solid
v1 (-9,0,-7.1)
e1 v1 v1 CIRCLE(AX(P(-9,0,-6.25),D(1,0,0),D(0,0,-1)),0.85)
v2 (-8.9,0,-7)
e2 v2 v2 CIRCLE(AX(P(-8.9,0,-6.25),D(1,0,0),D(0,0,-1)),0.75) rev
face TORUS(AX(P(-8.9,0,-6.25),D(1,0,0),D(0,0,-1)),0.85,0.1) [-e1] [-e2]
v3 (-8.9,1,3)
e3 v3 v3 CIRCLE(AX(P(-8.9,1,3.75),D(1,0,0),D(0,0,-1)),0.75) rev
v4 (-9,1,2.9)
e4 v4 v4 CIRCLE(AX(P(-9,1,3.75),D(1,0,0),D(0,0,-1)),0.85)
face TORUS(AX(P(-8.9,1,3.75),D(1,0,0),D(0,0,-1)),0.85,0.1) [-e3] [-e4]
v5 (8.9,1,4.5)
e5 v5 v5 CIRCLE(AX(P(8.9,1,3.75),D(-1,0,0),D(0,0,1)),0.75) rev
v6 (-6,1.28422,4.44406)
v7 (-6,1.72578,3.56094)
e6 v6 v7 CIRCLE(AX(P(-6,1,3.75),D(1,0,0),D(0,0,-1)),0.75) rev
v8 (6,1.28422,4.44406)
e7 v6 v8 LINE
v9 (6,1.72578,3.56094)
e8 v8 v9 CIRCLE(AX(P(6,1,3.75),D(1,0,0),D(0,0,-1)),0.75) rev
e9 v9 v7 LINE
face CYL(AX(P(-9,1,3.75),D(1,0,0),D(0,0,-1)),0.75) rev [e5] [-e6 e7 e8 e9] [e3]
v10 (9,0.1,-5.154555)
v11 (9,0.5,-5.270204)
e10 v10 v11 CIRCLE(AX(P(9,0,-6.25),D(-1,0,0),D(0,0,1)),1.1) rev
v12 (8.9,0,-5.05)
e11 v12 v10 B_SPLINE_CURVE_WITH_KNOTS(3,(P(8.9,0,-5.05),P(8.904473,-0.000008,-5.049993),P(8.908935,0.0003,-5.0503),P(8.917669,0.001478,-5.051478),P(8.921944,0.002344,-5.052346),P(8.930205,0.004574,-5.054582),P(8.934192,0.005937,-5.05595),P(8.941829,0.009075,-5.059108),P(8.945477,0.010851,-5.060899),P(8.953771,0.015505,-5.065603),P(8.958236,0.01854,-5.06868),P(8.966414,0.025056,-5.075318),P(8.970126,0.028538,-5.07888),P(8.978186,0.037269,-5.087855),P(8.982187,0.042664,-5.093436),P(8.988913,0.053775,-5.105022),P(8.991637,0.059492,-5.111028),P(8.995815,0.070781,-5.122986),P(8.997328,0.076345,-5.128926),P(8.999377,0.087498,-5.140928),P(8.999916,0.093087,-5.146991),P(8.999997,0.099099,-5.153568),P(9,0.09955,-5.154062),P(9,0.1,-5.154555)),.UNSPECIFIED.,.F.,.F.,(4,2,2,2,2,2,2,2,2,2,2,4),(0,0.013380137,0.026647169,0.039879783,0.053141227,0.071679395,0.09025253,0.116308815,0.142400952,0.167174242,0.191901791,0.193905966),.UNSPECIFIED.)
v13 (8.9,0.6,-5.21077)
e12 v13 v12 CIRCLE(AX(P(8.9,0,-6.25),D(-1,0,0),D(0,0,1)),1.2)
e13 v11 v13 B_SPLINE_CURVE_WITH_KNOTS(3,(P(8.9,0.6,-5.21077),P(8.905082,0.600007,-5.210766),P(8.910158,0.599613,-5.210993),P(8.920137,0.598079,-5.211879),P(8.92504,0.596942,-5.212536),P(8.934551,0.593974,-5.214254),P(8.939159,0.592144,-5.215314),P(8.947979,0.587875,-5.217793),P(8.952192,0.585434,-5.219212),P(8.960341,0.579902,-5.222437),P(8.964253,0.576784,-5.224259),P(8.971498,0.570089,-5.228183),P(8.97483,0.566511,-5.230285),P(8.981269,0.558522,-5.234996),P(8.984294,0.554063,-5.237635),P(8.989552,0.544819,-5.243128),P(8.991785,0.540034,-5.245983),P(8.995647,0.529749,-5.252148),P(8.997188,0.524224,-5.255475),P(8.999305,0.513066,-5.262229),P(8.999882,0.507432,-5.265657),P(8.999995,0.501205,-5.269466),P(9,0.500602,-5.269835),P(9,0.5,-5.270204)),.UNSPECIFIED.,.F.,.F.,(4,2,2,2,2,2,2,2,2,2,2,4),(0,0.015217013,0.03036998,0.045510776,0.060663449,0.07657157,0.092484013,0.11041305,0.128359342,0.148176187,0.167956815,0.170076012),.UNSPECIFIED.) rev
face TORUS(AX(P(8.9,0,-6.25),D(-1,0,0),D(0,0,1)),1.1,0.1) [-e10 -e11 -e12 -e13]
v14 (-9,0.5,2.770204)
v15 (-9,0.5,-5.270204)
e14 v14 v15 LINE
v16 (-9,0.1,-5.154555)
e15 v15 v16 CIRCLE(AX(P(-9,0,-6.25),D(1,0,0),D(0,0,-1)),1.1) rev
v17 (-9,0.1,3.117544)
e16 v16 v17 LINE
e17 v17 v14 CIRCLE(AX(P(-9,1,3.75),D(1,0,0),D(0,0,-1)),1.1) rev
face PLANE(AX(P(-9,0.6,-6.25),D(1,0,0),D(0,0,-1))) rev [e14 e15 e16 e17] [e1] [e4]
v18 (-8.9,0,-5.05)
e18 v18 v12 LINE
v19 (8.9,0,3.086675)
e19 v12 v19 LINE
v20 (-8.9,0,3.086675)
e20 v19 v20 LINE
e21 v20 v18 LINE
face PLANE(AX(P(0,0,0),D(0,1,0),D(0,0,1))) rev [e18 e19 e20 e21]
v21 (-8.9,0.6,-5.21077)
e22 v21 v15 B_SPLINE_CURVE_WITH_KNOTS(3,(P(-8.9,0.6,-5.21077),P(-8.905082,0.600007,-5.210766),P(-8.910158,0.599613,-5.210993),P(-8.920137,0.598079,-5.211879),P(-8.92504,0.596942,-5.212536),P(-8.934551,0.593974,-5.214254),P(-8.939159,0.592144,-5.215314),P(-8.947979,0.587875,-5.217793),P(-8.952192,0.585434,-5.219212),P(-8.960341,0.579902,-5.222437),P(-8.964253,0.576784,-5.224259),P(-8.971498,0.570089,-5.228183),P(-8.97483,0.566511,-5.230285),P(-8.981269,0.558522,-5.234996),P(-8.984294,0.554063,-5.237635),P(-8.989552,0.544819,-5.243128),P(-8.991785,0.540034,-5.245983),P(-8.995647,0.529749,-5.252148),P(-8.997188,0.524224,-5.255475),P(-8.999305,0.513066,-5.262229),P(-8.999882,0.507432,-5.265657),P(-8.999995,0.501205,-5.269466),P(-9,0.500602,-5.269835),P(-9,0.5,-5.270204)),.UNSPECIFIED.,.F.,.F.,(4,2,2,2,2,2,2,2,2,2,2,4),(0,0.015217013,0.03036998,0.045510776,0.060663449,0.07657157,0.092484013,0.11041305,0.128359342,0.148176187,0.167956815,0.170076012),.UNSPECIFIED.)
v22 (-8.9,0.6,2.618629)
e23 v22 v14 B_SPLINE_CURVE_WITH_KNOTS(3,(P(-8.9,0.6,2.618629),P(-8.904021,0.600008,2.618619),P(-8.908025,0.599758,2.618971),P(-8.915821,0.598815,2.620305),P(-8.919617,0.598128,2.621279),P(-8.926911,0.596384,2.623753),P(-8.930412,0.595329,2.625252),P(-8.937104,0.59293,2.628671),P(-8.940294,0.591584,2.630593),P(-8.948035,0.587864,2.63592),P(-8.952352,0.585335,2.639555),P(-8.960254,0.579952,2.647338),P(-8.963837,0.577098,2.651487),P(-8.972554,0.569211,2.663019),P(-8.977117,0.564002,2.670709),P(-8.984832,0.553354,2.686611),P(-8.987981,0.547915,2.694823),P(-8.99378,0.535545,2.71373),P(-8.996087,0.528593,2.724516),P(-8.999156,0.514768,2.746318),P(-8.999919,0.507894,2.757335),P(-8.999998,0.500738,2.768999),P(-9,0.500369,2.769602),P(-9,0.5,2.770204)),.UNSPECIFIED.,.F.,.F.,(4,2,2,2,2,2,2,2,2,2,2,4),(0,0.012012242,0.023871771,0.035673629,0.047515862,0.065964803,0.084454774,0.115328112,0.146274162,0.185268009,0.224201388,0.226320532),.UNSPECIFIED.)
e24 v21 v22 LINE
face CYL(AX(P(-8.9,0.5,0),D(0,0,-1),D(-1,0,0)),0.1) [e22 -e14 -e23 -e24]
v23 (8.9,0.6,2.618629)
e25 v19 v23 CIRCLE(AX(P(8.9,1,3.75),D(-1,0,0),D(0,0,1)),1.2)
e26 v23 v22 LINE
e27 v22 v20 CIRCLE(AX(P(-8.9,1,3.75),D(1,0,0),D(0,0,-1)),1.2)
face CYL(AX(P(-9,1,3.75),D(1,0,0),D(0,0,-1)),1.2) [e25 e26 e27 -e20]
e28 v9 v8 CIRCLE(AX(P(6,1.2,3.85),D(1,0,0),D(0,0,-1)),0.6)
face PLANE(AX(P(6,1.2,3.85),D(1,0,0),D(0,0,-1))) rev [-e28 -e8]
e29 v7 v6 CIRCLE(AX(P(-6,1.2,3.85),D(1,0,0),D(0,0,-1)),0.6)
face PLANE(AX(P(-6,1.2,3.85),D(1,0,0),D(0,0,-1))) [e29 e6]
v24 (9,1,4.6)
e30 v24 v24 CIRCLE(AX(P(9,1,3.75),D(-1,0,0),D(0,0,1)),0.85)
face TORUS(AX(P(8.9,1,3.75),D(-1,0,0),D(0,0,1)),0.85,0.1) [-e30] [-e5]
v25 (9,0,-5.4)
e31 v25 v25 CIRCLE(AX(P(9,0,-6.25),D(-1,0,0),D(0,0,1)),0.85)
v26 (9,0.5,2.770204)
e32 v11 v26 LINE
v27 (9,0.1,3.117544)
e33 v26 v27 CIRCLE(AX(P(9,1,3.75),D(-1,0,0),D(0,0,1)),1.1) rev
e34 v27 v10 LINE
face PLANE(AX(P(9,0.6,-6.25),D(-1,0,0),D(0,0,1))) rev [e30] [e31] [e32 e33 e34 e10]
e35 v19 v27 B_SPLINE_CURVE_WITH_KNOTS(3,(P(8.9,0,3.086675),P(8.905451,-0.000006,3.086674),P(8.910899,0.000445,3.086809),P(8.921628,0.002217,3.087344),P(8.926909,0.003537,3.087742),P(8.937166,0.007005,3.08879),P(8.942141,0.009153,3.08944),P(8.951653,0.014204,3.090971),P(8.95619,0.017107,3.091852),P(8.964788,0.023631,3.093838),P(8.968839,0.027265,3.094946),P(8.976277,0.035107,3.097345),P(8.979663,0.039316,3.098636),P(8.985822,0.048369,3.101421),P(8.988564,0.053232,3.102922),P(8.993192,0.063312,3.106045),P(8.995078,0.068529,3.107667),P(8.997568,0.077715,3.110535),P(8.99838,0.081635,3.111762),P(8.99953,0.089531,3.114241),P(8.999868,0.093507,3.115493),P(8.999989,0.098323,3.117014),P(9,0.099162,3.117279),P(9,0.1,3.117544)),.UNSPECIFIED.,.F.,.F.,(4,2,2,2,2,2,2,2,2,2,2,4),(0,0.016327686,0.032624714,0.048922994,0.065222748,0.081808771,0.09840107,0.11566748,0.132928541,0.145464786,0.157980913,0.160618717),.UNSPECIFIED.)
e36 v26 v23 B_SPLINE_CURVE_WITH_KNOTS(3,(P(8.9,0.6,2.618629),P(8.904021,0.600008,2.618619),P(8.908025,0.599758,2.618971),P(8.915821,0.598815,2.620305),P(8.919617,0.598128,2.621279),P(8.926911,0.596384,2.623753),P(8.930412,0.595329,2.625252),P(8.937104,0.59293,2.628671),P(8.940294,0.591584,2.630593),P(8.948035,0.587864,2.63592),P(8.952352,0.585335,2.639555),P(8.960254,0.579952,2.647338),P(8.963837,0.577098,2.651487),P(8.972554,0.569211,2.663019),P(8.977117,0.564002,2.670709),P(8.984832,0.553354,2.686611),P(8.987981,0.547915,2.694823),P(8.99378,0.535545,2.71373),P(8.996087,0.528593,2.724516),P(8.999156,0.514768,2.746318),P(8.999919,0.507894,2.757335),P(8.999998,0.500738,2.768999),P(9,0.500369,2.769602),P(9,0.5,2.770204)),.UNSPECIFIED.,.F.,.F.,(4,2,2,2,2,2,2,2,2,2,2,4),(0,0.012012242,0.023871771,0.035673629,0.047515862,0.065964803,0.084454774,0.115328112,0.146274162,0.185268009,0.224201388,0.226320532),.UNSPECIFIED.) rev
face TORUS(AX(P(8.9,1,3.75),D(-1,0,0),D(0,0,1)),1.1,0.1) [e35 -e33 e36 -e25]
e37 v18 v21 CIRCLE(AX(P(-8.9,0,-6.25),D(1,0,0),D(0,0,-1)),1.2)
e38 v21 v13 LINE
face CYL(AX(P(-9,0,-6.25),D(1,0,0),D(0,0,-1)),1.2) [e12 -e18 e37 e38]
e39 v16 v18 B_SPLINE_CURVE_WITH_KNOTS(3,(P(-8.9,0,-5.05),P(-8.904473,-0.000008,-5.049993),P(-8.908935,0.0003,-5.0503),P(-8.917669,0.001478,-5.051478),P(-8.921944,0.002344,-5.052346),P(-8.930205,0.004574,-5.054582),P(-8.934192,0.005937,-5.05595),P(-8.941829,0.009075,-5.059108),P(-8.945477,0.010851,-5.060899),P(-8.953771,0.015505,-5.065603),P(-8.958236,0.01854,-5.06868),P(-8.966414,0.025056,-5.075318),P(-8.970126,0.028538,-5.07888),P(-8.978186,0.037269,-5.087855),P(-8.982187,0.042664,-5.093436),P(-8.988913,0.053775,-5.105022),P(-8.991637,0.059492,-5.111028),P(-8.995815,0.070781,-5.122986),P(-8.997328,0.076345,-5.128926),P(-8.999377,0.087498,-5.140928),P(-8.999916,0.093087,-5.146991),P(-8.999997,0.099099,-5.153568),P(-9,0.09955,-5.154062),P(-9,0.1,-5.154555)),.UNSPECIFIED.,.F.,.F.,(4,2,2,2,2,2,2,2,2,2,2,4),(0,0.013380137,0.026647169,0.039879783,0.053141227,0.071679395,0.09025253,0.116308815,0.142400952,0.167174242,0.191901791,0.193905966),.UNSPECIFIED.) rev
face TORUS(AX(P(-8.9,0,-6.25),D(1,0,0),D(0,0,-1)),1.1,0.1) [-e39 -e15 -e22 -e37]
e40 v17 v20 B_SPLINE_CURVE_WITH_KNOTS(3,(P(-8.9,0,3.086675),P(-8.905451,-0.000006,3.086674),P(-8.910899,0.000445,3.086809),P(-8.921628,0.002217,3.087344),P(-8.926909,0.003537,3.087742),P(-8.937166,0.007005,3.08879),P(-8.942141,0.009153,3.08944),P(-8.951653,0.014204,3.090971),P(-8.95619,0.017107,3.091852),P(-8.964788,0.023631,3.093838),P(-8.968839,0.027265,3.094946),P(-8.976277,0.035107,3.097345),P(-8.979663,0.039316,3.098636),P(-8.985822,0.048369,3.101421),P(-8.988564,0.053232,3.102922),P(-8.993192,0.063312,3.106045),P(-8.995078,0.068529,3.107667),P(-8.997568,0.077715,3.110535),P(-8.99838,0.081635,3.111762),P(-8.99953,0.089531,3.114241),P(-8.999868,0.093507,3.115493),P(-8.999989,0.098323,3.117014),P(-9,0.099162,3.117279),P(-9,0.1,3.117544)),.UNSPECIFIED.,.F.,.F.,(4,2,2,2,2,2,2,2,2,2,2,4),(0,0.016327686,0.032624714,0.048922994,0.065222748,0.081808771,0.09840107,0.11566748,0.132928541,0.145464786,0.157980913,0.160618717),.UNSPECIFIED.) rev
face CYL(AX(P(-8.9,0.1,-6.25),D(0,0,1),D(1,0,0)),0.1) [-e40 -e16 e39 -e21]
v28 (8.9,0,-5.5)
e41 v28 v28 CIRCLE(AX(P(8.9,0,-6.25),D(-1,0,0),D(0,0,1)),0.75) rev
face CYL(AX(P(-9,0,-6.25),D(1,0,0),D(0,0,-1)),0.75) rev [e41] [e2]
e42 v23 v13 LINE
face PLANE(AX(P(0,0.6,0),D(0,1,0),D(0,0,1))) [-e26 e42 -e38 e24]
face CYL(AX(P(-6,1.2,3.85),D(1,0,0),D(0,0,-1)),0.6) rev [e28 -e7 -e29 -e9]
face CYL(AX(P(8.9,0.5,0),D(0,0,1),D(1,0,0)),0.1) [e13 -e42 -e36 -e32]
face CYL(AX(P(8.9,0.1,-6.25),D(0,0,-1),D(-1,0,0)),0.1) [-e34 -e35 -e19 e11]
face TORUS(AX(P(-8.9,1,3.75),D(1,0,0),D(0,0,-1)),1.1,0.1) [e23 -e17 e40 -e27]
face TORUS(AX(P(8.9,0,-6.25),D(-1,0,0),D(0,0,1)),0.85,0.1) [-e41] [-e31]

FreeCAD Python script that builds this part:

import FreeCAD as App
import Part
import Sketcher
from FreeCAD import Vector
Q = App.Units.Quantity


def edges_at(feature, points):
    """Names of the edges that pass closest to the given points."""
    edges = feature.Shape.Edges
    near = lambda p: min(range(len(edges)), key=lambda i: edges[i].distToShape(Part.Vertex(*p))[0])
    return sorted({f"Edge{near(p) + 1}" for p in points})

doc = App.newDocument("Part")
body = doc.addObject("PartDesign::Body", "Body")

# Sketch on XZ plane
sketch1 = body.newObject("Sketcher::SketchObject", "Sketch")
sketch1.AttachmentSupport = (doc.getObject("XZ_Plane"), [""])
sketch1.MapMode = "FlatFace"
sketch1.addGeometry(Part.LineSegment(Vector(-9, -6.25, 0), Vector(-9, 3.75, 0)), False)
sketch1.addGeometry(Part.LineSegment(Vector(-9, 3.75, 0), Vector(9, 3.75, 0)), False)
sketch1.addGeometry(Part.LineSegment(Vector(9, 3.75, 0), Vector(9, -6.25, 0)), False)
sketch1.addGeometry(Part.LineSegment(Vector(9, -6.25, 0), Vector(-9, -6.25, 0)), False)
sketch1.addConstraint(Sketcher.Constraint("Coincident", 0, 2, 1, 1))
sketch1.addConstraint(Sketcher.Constraint("Coincident", 1, 2, 2, 1))
sketch1.addConstraint(Sketcher.Constraint("Coincident", 2, 2, 3, 1))
sketch1.addConstraint(Sketcher.Constraint("Coincident", 3, 2, 0, 1))
sketch1.addConstraint(Sketcher.Constraint("Vertical", 0))
sketch1.addConstraint(Sketcher.Constraint("Horizontal", 1))
sketch1.addConstraint(Sketcher.Constraint("Vertical", 2))
sketch1.addConstraint(Sketcher.Constraint("Horizontal", 3))
sketch1.addConstraint(Sketcher.Constraint("DistanceX", 1, 1, 1, 2, Q("18 mm")))
sketch1.addConstraint(Sketcher.Constraint("DistanceY", 0, 1, 0, 2, Q("10 mm")))
sketch1.addConstraint(Sketcher.Constraint("DistanceX", 0, 2, -1, 1, Q("9 mm")))
sketch1.addConstraint(Sketcher.Constraint("DistanceY", -1, 1, 0, 2, Q("3.75 mm")))
pad1 = body.newObject("PartDesign::Pad", "Pad")
pad1.Profile = sketch1
pad1.Length = 0.6
pad1.Reversed = True

# Sketch on YZ plane
sketch2 = body.newObject("Sketcher::SketchObject", "Sketch001")
sketch2.AttachmentSupport = (doc.getObject("YZ_Plane"), [""])
sketch2.MapMode = "FlatFace"
sketch2.AttachmentOffset = App.Placement(Vector(0, 0, 9), App.Rotation())
sketch2.addGeometry(Part.Circle(Vector(1, 3.75, 0), Vector(0, 0, 1), 1.2), False)
sketch2.addGeometry(Part.Circle(Vector(0, -6.25, 0), Vector(0, 0, 1), 1.2), False)
sketch2.addConstraint(Sketcher.Constraint("Equal", 0, 1))
sketch2.addConstraint(Sketcher.Constraint("PointOnObject", 1, 3, -2))
sketch2.addConstraint(Sketcher.Constraint("Diameter", 0, Q("2.4 mm")))
sketch2.addConstraint(Sketcher.Constraint("DistanceX", -1, 1, 0, 3, Q("1 mm")))
sketch2.addConstraint(Sketcher.Constraint("DistanceY", 1, 3, 0, 3, Q("10 mm")))
sketch2.addConstraint(Sketcher.Constraint("DistanceY", -1, 1, 0, 3, Q("3.75 mm")))
pad2 = body.newObject("PartDesign::Pad", "Pad001")
pad2.Profile = sketch2
pad2.Length = 18
pad2.Reversed = True

# Sketch on YZ plane
sketch3 = body.newObject("Sketcher::SketchObject", "Sketch002")
sketch3.AttachmentSupport = (doc.getObject("YZ_Plane"), [""])
sketch3.MapMode = "FlatFace"
sketch3.AttachmentOffset = App.Placement(Vector(0, 0, 9), App.Rotation())
sketch3.addGeometry(Part.Circle(Vector(1, 3.75, 0), Vector(0, 0, 1), 0.75), False)
sketch3.addGeometry(Part.Circle(Vector(0, -6.25, 0), Vector(0, 0, 1), 0.75), False)
sketch3.addConstraint(Sketcher.Constraint("Equal", 0, 1))
sketch3.addConstraint(Sketcher.Constraint("PointOnObject", 1, 3, -2))
sketch3.addConstraint(Sketcher.Constraint("Diameter", 0, Q("1.5 mm")))
sketch3.addConstraint(Sketcher.Constraint("DistanceX", -1, 1, 0, 3, Q("1 mm")))
sketch3.addConstraint(Sketcher.Constraint("DistanceY", 1, 3, 0, 3, Q("10 mm")))
sketch3.addConstraint(Sketcher.Constraint("DistanceY", -1, 1, 0, 3, Q("3.75 mm")))
pocket1 = body.newObject("PartDesign::Pocket", "Pocket")
pocket1.Profile = sketch3
pocket1.Length = 18

# Sketch on YZ plane
sketch4 = body.newObject("Sketcher::SketchObject", "Sketch003")
sketch4.AttachmentSupport = (doc.getObject("YZ_Plane"), [""])
sketch4.MapMode = "FlatFace"
sketch4.addGeometry(Part.Circle(Vector(1.2, 3.85, 0), Vector(0, 0, 1), 0.6), False)
sketch4.addConstraint(Sketcher.Constraint("Diameter", 0, Q("1.2 mm")))
sketch4.addConstraint(Sketcher.Constraint("DistanceX", -1, 1, 0, 3, Q("1.2 mm")))
sketch4.addConstraint(Sketcher.Constraint("DistanceY", -1, 1, 0, 3, Q("3.85 mm")))
pocket2 = body.newObject("PartDesign::Pocket", "Pocket001")
pocket2.Profile = sketch4
pocket2.Length = 12
pocket2.Midplane = True
doc.recompute()

fillet = body.newObject("PartDesign::Fillet", "Fillet")
fillet.Base = (pocket2, edges_at(pocket2, [
    (9, 0, -0.982),
    (9, 0.6, -1.296),
    (-9, 1.738, 4.696),
    (9, 1.738, 4.696),
    (-9, 0, -0.982),
    (-9, 0.6, -1.296),
    (-9, -0.311, -7.409),
    (9, -0.311, -7.409),
    (-9, 1, 4.5),
    (9, 1, 4.5),
    (-9, 0, -5.5),
    (9, 0, -5.5),
]))
fillet.Radius = 0.1

doc.recompute()
